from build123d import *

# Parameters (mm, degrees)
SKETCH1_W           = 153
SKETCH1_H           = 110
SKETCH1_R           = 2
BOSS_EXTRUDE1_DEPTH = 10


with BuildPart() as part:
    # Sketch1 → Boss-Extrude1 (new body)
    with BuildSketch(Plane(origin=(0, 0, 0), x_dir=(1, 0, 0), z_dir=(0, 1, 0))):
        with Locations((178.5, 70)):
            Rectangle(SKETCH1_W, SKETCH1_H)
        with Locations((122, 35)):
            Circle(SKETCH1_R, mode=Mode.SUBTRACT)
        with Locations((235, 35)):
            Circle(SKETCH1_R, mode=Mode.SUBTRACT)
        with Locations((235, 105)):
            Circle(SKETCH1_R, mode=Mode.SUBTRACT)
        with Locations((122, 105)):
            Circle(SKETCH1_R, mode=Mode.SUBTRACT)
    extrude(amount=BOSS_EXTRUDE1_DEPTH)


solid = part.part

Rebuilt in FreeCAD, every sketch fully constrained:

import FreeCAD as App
import Part
import Sketcher

V = App.Vector

doc = App.newDocument("Part")
body = doc.addObject("PartDesign::Body", "Body")

sketch1 = doc.addObject("Sketcher::SketchObject", "Sketch")
body.addObject(sketch1)
sketch1.AttachmentSupport = (doc.XZ_Plane, [""])
sketch1.MapMode = "FlatFace"
sketch1.addGeometry(Part.LineSegment(V(102, -125, 0), V(102, -15, 0)), False)
sketch1.addGeometry(Part.LineSegment(V(102, -15, 0), V(255, -15, 0)), False)
sketch1.addGeometry(Part.LineSegment(V(255, -15, 0), V(255, -125, 0)), False)
sketch1.addGeometry(Part.LineSegment(V(255, -125, 0), V(102, -125, 0)), False)
sketch1.addGeometry(Part.Circle(V(122, -35, 0), V(0, 0, 1), 2), False)
sketch1.addGeometry(Part.Circle(V(235, -35, 0), V(0, 0, 1), 2), False)
sketch1.addGeometry(Part.Circle(V(122, -105, 0), V(0, 0, 1), 2), False)
sketch1.addGeometry(Part.Circle(V(235, -105, 0), V(0, 0, 1), 2), False)
sketch1.addConstraint(Sketcher.Constraint("Coincident", 0, 2, 1, 1))
sketch1.addConstraint(Sketcher.Constraint("Coincident", 1, 2, 2, 1))
sketch1.addConstraint(Sketcher.Constraint("Coincident", 2, 2, 3, 1))
sketch1.addConstraint(Sketcher.Constraint("Coincident", 3, 2, 0, 1))
sketch1.addConstraint(Sketcher.Constraint("Vertical", 0))
sketch1.addConstraint(Sketcher.Constraint("Horizontal", 1))
sketch1.addConstraint(Sketcher.Constraint("Vertical", 2))
sketch1.addConstraint(Sketcher.Constraint("Horizontal", 3))
sketch1.addConstraint(Sketcher.Constraint("Equal", 4, 5))
sketch1.addConstraint(Sketcher.Constraint("Equal", 5, 6))
sketch1.addConstraint(Sketcher.Constraint("Equal", 6, 7))
sketch1.addConstraint(Sketcher.Constraint("Horizontal", 4, 3, 5, 3))
sketch1.addConstraint(Sketcher.Constraint("Horizontal", 6, 3, 7, 3))
sketch1.addConstraint(Sketcher.Constraint("Vertical", 4, 3, 6, 3))
sketch1.addConstraint(Sketcher.Constraint("Vertical", 5, 3, 7, 3))
sketch1.addConstraint(Sketcher.Constraint("Diameter", 4, 4.0))
sketch1.addConstraint(Sketcher.Constraint("DistanceX", 1, 1, 1, 2, 153.0))
sketch1.addConstraint(Sketcher.Constraint("DistanceY", 0, 1, 0, 2, 110.0))
sketch1.addConstraint(Sketcher.Constraint("DistanceX", -1, 1, 4, 3, 122.0))
sketch1.addConstraint(Sketcher.Constraint("DistanceY", 4, 3, -1, 1, 35.0))
sketch1.addConstraint(Sketcher.Constraint("DistanceX", -1, 1, 5, 3, 235.0))
sketch1.addConstraint(Sketcher.Constraint("DistanceY", 6, 3, -1, 1, 105.0))
sketch1.addConstraint(Sketcher.Constraint("DistanceX", -1, 1, 0, 2, 102.0))
sketch1.addConstraint(Sketcher.Constraint("DistanceY", 0, 2, -1, 1, 15.0))
pad1 = doc.addObject("PartDesign::Pad", "Pad")
body.addObject(pad1)
pad1.Profile = sketch1
pad1.Length = 10
pad1.Reversed = True

doc.recompute()
